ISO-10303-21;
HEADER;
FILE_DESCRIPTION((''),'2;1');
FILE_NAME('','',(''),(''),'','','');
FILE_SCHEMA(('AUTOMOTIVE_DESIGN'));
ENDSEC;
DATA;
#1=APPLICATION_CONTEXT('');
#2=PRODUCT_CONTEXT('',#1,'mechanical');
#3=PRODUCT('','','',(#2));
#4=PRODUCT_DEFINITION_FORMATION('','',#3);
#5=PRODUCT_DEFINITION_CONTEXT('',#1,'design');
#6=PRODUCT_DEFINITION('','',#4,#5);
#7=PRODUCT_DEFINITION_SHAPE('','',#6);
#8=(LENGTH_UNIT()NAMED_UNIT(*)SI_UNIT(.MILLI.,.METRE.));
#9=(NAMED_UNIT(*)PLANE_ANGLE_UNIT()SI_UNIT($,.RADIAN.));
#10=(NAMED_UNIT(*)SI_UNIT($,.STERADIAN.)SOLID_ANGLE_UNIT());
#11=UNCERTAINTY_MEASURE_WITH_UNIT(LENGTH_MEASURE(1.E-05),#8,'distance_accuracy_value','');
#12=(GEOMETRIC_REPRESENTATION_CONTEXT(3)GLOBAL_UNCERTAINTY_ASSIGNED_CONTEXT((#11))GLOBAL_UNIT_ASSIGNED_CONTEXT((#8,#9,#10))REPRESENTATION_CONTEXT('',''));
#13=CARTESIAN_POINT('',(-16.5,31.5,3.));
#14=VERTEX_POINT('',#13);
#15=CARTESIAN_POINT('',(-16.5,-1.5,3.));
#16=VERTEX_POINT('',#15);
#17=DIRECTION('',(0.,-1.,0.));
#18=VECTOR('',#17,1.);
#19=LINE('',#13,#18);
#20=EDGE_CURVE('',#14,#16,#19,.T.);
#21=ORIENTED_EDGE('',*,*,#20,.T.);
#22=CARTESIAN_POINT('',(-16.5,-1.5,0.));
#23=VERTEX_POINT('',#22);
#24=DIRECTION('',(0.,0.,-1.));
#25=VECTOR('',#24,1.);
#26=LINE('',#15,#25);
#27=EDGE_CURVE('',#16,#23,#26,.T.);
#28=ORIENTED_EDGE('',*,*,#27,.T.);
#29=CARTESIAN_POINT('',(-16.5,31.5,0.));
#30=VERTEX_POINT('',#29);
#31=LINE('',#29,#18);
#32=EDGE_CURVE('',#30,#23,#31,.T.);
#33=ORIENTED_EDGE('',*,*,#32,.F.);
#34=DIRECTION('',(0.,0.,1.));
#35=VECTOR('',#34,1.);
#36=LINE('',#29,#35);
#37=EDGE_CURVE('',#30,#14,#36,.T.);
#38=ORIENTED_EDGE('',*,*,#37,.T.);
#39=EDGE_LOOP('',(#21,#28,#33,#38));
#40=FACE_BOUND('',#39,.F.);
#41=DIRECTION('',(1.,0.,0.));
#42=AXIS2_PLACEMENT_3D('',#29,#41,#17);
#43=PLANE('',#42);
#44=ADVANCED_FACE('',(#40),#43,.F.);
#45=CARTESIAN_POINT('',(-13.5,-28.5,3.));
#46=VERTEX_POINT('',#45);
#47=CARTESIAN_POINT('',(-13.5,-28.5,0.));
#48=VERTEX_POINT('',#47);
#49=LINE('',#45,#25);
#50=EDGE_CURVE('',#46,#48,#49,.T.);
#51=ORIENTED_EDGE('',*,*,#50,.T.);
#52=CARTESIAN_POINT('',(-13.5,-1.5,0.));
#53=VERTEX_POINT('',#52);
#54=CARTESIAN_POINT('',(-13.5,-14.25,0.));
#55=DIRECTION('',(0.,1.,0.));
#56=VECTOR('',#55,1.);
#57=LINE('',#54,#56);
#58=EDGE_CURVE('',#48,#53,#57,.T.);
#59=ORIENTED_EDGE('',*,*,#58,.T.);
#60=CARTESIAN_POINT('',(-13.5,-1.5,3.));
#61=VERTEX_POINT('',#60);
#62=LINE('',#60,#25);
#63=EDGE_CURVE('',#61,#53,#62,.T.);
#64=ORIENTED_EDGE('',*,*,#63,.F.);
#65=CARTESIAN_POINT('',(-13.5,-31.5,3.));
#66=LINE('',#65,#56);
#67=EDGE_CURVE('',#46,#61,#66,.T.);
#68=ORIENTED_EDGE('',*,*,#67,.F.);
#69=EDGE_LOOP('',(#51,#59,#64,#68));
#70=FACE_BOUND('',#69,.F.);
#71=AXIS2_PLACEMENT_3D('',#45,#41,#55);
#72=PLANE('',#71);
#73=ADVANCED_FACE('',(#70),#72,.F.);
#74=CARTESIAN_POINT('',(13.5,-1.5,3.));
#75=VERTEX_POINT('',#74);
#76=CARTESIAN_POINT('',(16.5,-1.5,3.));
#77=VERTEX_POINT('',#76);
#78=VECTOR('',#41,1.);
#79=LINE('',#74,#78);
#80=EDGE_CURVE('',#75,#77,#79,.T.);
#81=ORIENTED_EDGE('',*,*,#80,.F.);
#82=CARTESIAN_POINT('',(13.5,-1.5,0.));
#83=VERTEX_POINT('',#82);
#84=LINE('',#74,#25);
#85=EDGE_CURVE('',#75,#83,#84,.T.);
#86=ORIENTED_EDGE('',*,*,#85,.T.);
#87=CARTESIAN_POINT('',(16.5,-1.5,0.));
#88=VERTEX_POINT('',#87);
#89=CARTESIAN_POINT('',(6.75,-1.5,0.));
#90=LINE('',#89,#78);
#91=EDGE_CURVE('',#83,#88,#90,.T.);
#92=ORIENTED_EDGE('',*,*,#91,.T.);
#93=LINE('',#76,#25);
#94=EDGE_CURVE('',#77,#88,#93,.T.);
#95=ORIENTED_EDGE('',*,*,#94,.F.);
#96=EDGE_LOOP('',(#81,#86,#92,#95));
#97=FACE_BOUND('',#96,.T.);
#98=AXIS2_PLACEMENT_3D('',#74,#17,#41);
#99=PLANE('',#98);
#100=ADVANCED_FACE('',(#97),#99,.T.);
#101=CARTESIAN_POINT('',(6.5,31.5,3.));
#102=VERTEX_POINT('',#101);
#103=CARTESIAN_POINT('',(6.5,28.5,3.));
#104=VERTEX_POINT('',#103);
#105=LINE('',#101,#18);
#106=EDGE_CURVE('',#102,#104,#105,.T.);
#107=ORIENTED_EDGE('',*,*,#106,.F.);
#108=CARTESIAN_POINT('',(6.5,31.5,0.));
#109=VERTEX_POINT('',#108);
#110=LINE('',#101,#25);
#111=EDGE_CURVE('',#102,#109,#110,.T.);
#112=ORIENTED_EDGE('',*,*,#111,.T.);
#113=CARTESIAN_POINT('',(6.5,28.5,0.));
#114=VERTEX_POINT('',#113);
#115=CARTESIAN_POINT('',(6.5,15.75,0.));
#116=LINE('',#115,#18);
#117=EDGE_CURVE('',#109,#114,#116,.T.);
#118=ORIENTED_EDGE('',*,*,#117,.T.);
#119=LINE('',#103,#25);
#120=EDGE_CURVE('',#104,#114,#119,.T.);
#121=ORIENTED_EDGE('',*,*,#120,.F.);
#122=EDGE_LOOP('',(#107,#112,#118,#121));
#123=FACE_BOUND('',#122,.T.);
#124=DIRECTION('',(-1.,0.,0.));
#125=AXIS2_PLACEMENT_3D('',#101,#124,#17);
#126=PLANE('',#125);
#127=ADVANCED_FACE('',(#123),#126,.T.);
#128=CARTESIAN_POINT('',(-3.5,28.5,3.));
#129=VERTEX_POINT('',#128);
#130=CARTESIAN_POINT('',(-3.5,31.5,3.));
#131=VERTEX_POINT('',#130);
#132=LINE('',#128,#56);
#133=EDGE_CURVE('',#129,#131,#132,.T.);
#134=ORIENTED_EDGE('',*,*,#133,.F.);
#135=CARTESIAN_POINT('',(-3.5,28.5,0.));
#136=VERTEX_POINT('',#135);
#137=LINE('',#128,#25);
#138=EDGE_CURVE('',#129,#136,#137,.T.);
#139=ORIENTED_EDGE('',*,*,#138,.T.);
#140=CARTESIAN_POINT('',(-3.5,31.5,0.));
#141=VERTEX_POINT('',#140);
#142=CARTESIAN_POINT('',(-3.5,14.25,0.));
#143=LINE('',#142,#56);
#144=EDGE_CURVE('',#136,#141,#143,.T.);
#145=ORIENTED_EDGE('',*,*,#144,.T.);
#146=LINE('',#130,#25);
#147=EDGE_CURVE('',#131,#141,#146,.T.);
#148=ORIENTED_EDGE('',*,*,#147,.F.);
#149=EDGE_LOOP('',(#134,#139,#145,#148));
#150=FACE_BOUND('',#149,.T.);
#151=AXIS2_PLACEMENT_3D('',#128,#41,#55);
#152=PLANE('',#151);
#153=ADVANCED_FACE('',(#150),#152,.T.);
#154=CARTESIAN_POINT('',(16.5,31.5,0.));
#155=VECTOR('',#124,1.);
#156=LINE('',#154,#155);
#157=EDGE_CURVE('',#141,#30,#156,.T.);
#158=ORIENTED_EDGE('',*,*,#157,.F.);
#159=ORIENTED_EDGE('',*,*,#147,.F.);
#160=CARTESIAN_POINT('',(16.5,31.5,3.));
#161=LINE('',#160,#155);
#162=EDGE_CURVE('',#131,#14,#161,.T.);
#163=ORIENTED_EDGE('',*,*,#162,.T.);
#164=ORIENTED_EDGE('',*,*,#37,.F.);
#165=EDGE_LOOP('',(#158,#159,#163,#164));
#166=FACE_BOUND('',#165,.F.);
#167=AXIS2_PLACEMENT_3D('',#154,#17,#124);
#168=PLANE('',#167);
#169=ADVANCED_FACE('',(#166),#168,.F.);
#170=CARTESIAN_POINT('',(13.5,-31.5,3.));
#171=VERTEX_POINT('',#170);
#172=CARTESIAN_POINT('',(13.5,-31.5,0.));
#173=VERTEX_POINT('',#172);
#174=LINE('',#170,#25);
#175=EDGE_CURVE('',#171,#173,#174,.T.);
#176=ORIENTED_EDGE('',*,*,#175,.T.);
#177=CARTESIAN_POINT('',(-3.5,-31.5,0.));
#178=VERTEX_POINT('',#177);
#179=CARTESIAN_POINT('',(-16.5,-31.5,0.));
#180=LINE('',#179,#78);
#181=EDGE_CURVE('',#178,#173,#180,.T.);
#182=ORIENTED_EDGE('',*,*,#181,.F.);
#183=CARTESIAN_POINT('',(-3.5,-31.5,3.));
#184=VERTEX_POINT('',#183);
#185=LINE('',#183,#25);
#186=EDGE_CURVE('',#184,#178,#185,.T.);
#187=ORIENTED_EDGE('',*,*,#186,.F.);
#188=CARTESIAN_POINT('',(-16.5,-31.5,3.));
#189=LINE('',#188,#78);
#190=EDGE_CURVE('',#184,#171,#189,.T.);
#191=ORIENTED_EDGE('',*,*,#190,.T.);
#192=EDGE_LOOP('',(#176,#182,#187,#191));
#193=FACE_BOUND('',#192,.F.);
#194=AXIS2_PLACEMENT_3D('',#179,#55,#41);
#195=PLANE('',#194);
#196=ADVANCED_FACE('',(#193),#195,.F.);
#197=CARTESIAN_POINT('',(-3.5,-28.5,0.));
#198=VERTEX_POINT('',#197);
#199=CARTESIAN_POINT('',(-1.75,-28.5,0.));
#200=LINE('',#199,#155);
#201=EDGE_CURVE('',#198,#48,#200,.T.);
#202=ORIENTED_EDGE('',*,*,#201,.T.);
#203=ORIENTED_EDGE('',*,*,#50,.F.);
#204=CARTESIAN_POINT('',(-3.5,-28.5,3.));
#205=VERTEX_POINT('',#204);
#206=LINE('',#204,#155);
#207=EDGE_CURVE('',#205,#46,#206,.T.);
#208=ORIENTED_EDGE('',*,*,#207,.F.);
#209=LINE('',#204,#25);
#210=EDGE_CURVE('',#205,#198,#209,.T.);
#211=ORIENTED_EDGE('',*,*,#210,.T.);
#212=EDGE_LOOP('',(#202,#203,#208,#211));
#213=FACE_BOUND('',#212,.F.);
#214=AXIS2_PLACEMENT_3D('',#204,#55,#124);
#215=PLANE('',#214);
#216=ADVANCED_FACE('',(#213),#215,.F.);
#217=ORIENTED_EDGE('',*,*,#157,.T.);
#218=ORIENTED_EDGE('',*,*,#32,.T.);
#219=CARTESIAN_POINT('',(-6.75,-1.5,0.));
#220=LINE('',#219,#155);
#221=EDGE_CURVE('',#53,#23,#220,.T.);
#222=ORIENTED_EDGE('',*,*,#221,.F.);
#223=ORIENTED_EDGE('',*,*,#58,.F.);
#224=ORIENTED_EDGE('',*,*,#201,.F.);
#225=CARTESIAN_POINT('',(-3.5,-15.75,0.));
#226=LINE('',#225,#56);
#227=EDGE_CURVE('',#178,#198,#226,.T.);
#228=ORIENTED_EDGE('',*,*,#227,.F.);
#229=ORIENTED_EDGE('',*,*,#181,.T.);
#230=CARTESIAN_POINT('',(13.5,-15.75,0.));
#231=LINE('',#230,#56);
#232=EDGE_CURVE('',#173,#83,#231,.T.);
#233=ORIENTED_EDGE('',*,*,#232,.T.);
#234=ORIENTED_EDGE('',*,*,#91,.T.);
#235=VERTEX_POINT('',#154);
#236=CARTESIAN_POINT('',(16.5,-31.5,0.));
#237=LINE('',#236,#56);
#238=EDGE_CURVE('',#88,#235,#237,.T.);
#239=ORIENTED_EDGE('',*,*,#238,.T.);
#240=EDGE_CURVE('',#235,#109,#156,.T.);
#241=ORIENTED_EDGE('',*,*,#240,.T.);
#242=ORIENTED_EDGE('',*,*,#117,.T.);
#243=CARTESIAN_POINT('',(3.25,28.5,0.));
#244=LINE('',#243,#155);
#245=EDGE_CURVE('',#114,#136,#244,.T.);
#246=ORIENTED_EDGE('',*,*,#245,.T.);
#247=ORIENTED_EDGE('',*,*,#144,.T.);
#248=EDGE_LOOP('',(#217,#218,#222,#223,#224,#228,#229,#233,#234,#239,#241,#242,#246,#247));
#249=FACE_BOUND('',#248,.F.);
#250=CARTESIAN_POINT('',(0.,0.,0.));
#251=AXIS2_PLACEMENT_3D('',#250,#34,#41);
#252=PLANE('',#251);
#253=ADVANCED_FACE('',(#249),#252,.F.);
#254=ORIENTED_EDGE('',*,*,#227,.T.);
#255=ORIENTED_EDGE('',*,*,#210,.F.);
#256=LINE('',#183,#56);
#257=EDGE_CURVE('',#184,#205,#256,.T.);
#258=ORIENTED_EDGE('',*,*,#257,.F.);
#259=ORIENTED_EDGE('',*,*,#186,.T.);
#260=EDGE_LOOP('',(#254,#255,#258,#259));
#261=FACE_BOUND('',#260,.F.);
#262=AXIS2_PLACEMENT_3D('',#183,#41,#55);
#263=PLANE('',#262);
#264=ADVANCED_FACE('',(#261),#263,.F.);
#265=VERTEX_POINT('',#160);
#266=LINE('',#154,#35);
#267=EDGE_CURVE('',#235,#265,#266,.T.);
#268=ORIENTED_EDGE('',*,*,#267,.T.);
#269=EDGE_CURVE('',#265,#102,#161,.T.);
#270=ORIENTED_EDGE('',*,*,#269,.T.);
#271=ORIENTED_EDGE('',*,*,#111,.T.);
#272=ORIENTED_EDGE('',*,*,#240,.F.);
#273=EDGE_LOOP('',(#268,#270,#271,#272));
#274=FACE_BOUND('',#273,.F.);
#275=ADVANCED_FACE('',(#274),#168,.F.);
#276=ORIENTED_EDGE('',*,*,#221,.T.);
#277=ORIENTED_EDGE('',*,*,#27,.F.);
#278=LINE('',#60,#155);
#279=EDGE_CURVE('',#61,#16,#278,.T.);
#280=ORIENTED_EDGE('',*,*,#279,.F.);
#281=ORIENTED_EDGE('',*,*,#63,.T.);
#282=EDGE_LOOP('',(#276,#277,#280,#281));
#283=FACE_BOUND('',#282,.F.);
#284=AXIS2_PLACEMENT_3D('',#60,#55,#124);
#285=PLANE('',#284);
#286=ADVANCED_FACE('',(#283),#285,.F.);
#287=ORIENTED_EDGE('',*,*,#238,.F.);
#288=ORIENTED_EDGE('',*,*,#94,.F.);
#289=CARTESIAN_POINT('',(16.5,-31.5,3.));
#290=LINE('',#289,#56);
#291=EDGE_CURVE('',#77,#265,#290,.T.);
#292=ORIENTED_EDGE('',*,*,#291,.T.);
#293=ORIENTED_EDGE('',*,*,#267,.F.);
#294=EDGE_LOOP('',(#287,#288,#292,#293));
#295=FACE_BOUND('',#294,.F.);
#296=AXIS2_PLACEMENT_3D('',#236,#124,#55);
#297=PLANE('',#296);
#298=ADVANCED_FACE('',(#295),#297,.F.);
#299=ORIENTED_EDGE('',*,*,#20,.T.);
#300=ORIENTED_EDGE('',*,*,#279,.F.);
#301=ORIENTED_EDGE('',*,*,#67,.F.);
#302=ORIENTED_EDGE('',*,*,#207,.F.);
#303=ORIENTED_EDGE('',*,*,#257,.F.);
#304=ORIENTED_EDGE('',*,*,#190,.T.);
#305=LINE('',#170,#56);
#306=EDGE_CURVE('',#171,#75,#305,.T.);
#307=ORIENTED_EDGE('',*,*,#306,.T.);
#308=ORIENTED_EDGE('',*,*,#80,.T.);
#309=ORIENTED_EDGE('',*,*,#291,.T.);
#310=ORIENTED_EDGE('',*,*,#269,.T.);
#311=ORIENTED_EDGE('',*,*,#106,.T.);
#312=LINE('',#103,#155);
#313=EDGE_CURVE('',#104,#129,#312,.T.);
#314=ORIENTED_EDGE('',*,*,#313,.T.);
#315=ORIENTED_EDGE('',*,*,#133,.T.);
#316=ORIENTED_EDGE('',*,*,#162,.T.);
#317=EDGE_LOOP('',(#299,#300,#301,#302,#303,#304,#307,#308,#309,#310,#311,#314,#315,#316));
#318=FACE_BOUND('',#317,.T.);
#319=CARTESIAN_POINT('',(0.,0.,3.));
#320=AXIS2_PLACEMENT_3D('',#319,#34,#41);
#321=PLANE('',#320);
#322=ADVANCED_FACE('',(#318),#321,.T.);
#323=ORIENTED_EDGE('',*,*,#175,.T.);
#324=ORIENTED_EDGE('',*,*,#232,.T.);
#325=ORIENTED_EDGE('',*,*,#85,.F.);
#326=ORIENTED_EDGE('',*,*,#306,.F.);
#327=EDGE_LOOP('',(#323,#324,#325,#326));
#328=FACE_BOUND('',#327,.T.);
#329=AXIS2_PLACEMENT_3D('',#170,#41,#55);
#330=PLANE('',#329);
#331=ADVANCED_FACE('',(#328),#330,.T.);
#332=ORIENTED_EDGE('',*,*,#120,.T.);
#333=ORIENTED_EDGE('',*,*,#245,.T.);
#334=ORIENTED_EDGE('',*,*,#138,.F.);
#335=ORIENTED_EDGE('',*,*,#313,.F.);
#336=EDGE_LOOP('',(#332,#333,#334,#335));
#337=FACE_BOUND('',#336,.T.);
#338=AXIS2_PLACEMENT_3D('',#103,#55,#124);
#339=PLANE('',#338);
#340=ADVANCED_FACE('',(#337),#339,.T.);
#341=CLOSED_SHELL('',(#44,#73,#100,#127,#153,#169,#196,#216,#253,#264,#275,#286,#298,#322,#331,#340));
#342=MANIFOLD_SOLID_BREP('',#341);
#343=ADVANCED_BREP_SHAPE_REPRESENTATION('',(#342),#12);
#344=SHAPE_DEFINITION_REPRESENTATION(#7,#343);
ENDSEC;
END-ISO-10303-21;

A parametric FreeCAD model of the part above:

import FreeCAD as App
import Part
import Sketcher
from FreeCAD import Vector
Q = App.Units.Quantity


def add_polygon(sketch, points):
    """Adds a closed chain of lines whose ends are joined by coincident constraints."""
    first, n = sketch.GeometryCount, len(points)
    for a, b in zip(points, points[1:] + points[:1]):
        sketch.addGeometry(Part.LineSegment(App.Vector(*a, 0), App.Vector(*b, 0)), False)
    for i in range(n):
        sketch.addConstraint(Sketcher.Constraint("Coincident", first + i, 2, first + (i + 1) % n, 1))

doc = App.newDocument("Part")
body = doc.addObject("PartDesign::Body", "Body")

# Sketch on XY plane
sketch1 = body.newObject("Sketcher::SketchObject", "Sketch")
sketch1.AttachmentSupport = (doc.getObject("XY_Plane"), [""])
sketch1.MapMode = "FlatFace"
add_polygon(sketch1, [(-16.5, 31.5), (-16.5, -31.5), (16.5, -31.5), (16.5, 31.5)])  # lines 0-3
sketch1.addConstraint(Sketcher.Constraint("Vertical", 0))
sketch1.addConstraint(Sketcher.Constraint("Horizontal", 1))
sketch1.addConstraint(Sketcher.Constraint("Vertical", 2))
sketch1.addConstraint(Sketcher.Constraint("Horizontal", 3))
sketch1.addConstraint(Sketcher.Constraint("Symmetric", 0, 2, 2, 2, -1, 1))
sketch1.addConstraint(Sketcher.Constraint("DistanceX", 1, 1, 1, 2, Q("33 mm")))
sketch1.addConstraint(Sketcher.Constraint("DistanceY", 0, 2, 0, 1, Q("63 mm")))
pad1 = body.newObject("PartDesign::Pad", "Pad")
pad1.Profile = sketch1
pad1.Length = 3

# Sketch on XY plane
sketch2 = body.newObject("Sketcher::SketchObject", "Sketch001")
sketch2.AttachmentSupport = (doc.getObject("XY_Plane"), [""])
sketch2.MapMode = "FlatFace"
sketch2.AttachmentOffset = App.Placement(Vector(0, 0, 3), App.Rotation())
add_polygon(sketch2, [(-13.5, -1.5), (-16.5, -1.5), (-16.5, -31.5), (-3.5, -31.5), (-3.5, -28.5), (-13.5, -28.5)])  # lines 0-5
add_polygon(sketch2, [(13.5, -1.5), (13.5, -31.5), (16.5, -31.5), (16.5, -1.5)])  # lines 6-9
add_polygon(sketch2, [(6.5, 31.5), (-3.5, 31.5), (-3.5, 28.5), (6.5, 28.5)])  # lines 10-13
sketch2.addConstraint(Sketcher.Constraint("Horizontal", 0))
sketch2.addConstraint(Sketcher.Constraint("Vertical", 1))
sketch2.addConstraint(Sketcher.Constraint("Horizontal", 2))
sketch2.addConstraint(Sketcher.Constraint("Vertical", 3))
sketch2.addConstraint(Sketcher.Constraint("Horizontal", 4))
sketch2.addConstraint(Sketcher.Constraint("Vertical", 5))
sketch2.addConstraint(Sketcher.Constraint("Vertical", 6))
sketch2.addConstraint(Sketcher.Constraint("Horizontal", 7))
sketch2.addConstraint(Sketcher.Constraint("Vertical", 8))
sketch2.addConstraint(Sketcher.Constraint("Horizontal", 9))
sketch2.addConstraint(Sketcher.Constraint("Horizontal", 10))
sketch2.addConstraint(Sketcher.Constraint("Vertical", 11))
sketch2.addConstraint(Sketcher.Constraint("Horizontal", 12))
sketch2.addConstraint(Sketcher.Constraint("Vertical", 13))
sketch2.addConstraint(Sketcher.Constraint("Symmetric", 1, 2, 7, 2, -2))
sketch2.addConstraint(Sketcher.Constraint("Symmetric", 5, 2, 9, 2, -2))
sketch2.addConstraint(Sketcher.Constraint("Symmetric", 2, 2, 10, 2, -1))
sketch2.addConstraint(Sketcher.Constraint("Equal", 4, 10))
sketch2.addConstraint(Sketcher.Constraint("Equal", 9, 3))
sketch2.addConstraint(Sketcher.Constraint("Equal", 3, 11))
sketch2.addConstraint(Sketcher.Constraint("DistanceX", 0, 2, 0, 1, Q("3 mm")))
sketch2.addConstraint(Sketcher.Constraint("DistanceX", 4, 2, 4, 1, Q("10 mm")))
sketch2.addConstraint(Sketcher.Constraint("DistanceY", 1, 2, 1, 1, Q("30 mm")))
sketch2.addConstraint(Sketcher.Constraint("DistanceX", 2, 2, 6, 2, Q("17 mm")))
sketch2.addConstraint(Sketcher.Constraint("DistanceY", 5, 2, 11, 2, Q("30 mm")))
pocket1 = body.newObject("PartDesign::Pocket", "Pocket")
pocket1.Profile = sketch2
pocket1.Type = "ThroughAll"

doc.recompute()
